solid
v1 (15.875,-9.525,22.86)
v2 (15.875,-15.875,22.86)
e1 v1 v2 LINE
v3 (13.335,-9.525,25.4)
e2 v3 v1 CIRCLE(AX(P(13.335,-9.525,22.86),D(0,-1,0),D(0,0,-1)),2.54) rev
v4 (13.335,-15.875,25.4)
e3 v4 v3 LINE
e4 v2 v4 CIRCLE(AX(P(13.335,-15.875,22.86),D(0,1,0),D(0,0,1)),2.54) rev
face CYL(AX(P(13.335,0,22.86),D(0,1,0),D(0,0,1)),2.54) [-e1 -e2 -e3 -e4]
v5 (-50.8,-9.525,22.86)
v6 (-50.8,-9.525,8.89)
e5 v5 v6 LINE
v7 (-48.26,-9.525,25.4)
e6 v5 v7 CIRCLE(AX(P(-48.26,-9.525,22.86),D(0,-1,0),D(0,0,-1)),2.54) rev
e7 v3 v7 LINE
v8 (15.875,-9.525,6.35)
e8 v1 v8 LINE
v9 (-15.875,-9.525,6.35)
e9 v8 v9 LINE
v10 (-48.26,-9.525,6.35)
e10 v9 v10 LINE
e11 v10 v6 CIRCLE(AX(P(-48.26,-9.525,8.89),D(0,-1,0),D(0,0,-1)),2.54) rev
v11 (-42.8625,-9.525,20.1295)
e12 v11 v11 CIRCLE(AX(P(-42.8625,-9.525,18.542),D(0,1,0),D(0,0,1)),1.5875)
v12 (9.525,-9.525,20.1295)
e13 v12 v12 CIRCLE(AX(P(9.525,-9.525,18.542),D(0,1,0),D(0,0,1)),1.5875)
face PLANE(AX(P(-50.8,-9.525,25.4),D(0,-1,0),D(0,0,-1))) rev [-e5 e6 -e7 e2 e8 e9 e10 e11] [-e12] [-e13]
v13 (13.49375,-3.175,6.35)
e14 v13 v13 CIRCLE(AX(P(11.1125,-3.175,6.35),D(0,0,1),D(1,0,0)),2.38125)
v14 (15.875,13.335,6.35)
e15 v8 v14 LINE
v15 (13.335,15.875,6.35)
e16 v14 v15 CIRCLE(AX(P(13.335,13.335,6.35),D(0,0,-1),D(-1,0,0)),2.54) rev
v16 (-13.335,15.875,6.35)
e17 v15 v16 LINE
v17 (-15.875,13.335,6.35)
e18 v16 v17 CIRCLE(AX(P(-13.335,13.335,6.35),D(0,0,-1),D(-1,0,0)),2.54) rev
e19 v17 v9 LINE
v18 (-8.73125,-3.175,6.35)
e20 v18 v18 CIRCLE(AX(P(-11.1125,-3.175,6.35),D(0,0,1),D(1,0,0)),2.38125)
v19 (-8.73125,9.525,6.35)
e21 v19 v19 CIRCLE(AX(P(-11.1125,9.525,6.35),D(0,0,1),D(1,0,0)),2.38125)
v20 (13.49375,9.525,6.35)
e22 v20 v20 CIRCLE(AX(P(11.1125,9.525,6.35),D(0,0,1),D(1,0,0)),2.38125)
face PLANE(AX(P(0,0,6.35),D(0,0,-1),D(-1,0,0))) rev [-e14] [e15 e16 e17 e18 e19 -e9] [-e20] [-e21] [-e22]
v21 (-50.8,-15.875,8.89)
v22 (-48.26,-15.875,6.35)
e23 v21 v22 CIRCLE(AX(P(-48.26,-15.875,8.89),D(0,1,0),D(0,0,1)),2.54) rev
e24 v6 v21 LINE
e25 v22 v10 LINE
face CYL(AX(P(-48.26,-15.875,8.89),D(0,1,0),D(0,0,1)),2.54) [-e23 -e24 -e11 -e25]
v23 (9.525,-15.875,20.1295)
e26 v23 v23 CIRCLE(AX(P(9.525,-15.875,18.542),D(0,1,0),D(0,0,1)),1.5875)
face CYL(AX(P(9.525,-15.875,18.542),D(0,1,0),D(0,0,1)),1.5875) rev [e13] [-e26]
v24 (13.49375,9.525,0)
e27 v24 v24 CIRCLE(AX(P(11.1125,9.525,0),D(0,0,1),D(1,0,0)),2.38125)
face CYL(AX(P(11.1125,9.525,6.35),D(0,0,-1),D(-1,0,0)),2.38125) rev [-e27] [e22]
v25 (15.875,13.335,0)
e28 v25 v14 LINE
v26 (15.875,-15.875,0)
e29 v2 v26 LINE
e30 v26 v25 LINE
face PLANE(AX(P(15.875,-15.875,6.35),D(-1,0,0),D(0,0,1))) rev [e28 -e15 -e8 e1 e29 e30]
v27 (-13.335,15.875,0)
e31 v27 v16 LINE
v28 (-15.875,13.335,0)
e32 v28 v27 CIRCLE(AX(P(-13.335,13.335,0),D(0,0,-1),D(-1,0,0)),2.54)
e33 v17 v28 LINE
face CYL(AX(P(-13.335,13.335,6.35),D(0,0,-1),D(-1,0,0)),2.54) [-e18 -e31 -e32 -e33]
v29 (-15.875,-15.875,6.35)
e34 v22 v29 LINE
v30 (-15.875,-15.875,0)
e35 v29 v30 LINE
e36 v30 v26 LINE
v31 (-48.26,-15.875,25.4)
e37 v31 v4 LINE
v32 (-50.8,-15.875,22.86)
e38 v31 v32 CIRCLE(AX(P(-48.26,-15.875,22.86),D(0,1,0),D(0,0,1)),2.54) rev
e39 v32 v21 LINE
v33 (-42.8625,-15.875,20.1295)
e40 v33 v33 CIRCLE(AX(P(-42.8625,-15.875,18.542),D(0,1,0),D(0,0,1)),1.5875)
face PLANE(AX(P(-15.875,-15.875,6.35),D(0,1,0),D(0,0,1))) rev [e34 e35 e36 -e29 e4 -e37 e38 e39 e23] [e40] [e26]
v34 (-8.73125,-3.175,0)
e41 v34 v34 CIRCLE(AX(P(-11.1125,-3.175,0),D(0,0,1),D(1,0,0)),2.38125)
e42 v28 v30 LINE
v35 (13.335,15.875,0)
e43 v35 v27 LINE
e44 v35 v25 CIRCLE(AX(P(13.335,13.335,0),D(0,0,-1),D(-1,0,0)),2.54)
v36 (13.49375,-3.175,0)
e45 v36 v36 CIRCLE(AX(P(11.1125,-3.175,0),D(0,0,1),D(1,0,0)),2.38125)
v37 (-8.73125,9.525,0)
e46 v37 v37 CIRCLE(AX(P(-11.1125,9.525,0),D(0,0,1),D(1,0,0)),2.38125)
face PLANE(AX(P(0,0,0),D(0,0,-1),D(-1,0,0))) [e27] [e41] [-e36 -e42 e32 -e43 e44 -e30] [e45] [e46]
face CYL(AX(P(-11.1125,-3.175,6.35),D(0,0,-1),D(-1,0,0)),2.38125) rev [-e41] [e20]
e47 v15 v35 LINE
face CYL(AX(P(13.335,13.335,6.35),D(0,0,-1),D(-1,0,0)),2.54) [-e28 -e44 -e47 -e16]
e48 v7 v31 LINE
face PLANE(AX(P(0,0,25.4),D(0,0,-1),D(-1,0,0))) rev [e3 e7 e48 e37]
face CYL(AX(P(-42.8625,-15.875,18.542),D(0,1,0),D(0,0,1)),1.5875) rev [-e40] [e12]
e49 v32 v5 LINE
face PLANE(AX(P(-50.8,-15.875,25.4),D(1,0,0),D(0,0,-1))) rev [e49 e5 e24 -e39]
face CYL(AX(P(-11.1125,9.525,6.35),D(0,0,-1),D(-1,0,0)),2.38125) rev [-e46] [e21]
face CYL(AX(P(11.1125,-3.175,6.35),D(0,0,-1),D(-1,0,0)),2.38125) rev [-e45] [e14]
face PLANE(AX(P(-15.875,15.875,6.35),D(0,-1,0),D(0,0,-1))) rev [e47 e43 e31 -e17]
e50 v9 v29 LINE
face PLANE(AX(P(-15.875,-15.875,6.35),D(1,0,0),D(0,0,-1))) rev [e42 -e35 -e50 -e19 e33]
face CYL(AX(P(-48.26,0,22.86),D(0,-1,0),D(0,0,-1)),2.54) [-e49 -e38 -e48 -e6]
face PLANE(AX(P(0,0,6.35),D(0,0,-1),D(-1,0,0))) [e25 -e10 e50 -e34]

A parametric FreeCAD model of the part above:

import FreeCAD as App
import Part
import Sketcher

V = App.Vector
Q = App.Units.Quantity


def edges_at(feature, points):
    """Names of the edges that pass closest to the given points."""
    edges = feature.Shape.Edges
    near = lambda p: min(range(len(edges)), key=lambda i: edges[i].distToShape(Part.Vertex(*p))[0])
    return sorted({f"Edge{near(p) + 1}" for p in points})

doc = App.newDocument("Part")
body = doc.addObject("PartDesign::Body", "Body")

# Sketch on XY plane
sketch1 = body.newObject("Sketcher::SketchObject", "Sketch")
sketch1.AttachmentSupport = (doc.getObject("XY_Plane"), [""])
sketch1.MapMode = "FlatFace"
sketch1.addGeometry(Part.LineSegment(V(-15.9, 15.9, 0), V(-15.9, -15.9, 0)), False)
sketch1.addGeometry(Part.LineSegment(V(-15.9, -15.9, 0), V(15.9, -15.9, 0)), False)
sketch1.addGeometry(Part.LineSegment(V(15.9, -15.9, 0), V(15.9, 15.9, 0)), False)
sketch1.addGeometry(Part.LineSegment(V(15.9, 15.9, 0), V(-15.9, 15.9, 0)), False)
sketch1.addGeometry(Part.Circle(V(-11.1, -3.2, 0), V(0, 0, 1), 2.4), False)
sketch1.addGeometry(Part.Circle(V(11.1, -3.2, 0), V(0, 0, 1), 2.4), False)
sketch1.addGeometry(Part.Circle(V(-11.1, 9.5, 0), V(0, 0, 1), 2.4), False)
sketch1.addGeometry(Part.Circle(V(11.1, 9.5, 0), V(0, 0, 1), 2.4), False)
sketch1.addConstraint(Sketcher.Constraint("Coincident", 0, 2, 1, 1))
sketch1.addConstraint(Sketcher.Constraint("Coincident", 1, 2, 2, 1))
sketch1.addConstraint(Sketcher.Constraint("Coincident", 2, 2, 3, 1))
sketch1.addConstraint(Sketcher.Constraint("Coincident", 3, 2, 0, 1))
sketch1.addConstraint(Sketcher.Constraint("Vertical", 0))
sketch1.addConstraint(Sketcher.Constraint("Horizontal", 1))
sketch1.addConstraint(Sketcher.Constraint("Vertical", 2))
sketch1.addConstraint(Sketcher.Constraint("Horizontal", 3))
sketch1.addConstraint(Sketcher.Constraint("Equal", 4, 5))
sketch1.addConstraint(Sketcher.Constraint("Equal", 5, 6))
sketch1.addConstraint(Sketcher.Constraint("Equal", 6, 7))
sketch1.addConstraint(Sketcher.Constraint("Symmetric", 0, 2, 2, 2, -1, 1))
sketch1.addConstraint(Sketcher.Constraint("Symmetric", 4, 3, 5, 3, -2))
sketch1.addConstraint(Sketcher.Constraint("Symmetric", 6, 3, 7, 3, -2))
sketch1.addConstraint(Sketcher.Constraint("Vertical", 4, 3, 6, 3))
sketch1.addConstraint(Sketcher.Constraint("Equal", 3, 0))
sketch1.addConstraint(Sketcher.Constraint("Diameter", 4, Q("0.1875 in")))
sketch1.addConstraint(Sketcher.Constraint("DistanceY", 0, 2, 6, 3, Q("1 in")))
sketch1.addConstraint(Sketcher.Constraint("DistanceX", 1, 1, 1, 2, Q("1.25 in")))
sketch1.addConstraint(Sketcher.Constraint("DistanceY", 4, 3, 6, 3, Q("0.5 in")))
sketch1.addConstraint(Sketcher.Constraint("DistanceX", 4, 3, -1, 1, Q("0.4375 in")))
pad1 = body.newObject("PartDesign::Pad", "Pad")
pad1.Profile = sketch1
pad1.Length = Q("0.25 in")

# Sketch on XY plane
sketch2 = body.newObject("Sketcher::SketchObject", "Sketch001")
sketch2.AttachmentSupport = (doc.getObject("XY_Plane"), [""])
sketch2.MapMode = "FlatFace"
sketch2.AttachmentOffset = App.Placement(V(0, 0, 0.25 * 25.4), App.Rotation())
sketch2.addGeometry(Part.LineSegment(V(-51, -10, 0), V(-51, -16, 0)), False)
sketch2.addGeometry(Part.LineSegment(V(-51, -16, 0), V(16, -16, 0)), False)
sketch2.addGeometry(Part.LineSegment(V(16, -16, 0), V(16, -10, 0)), False)
sketch2.addGeometry(Part.LineSegment(V(16, -10, 0), V(-51, -10, 0)), False)
sketch2.addConstraint(Sketcher.Constraint("Coincident", 0, 2, 1, 1))
sketch2.addConstraint(Sketcher.Constraint("Coincident", 1, 2, 2, 1))
sketch2.addConstraint(Sketcher.Constraint("Coincident", 2, 2, 3, 1))
sketch2.addConstraint(Sketcher.Constraint("Coincident", 3, 2, 0, 1))
sketch2.addConstraint(Sketcher.Constraint("Vertical", 0))
sketch2.addConstraint(Sketcher.Constraint("Horizontal", 1))
sketch2.addConstraint(Sketcher.Constraint("Vertical", 2))
sketch2.addConstraint(Sketcher.Constraint("Horizontal", 3))
sketch2.addConstraint(Sketcher.Constraint("DistanceX", 0, 2, -1, 1, Q("2 in")))
sketch2.addConstraint(Sketcher.Constraint("DistanceY", 0, 2, 0, 1, Q("0.25 in")))
sketch2.addConstraint(Sketcher.Constraint("DistanceX", 1, 1, 1, 2, Q("2.625 in")))
sketch2.addConstraint(Sketcher.Constraint("DistanceY", 0, 2, -1, 1, Q("0.625 in")))
pad2 = body.newObject("PartDesign::Pad", "Pad001")
pad2.Profile = sketch2
pad2.Length = Q("0.75 in")

# Sketch on XZ plane
sketch3 = body.newObject("Sketcher::SketchObject", "Sketch002")
sketch3.AttachmentSupport = (doc.getObject("XZ_Plane"), [""])
sketch3.MapMode = "FlatFace"
sketch3.AttachmentOffset = App.Placement(V(0, 0, 0.375 * 25.4), App.Rotation())
sketch3.addGeometry(Part.Circle(V(9.5, 18.5, 0), V(0, 0, 1), 1.6), False)
sketch3.addGeometry(Part.Circle(V(-42.9, 18.5, 0), V(0, 0, 1), 1.6), False)
sketch3.addConstraint(Sketcher.Constraint("Equal", 0, 1))
sketch3.addConstraint(Sketcher.Constraint("Horizontal", 0, 3, 1, 3))
sketch3.addConstraint(Sketcher.Constraint("Diameter", 0, Q("0.125 in")))
sketch3.addConstraint(Sketcher.Constraint("DistanceY", -1, 1, 0, 3, Q("0.73 in")))
sketch3.addConstraint(Sketcher.Constraint("DistanceX", -1, 1, 0, 3, Q("0.375 in")))
sketch3.addConstraint(Sketcher.Constraint("DistanceX", 1, 3, -1, 1, Q("1.6875 in")))
pocket1 = body.newObject("PartDesign::Pocket", "Pocket")
pocket1.Profile = sketch3
pocket1.Type = "ThroughAll"
pocket1.Reversed = True
doc.recompute()

fillet = body.newObject("PartDesign::Fillet", "Fillet")
fillet.Base = (pocket1, edges_at(pocket1, [
    (-50.8, -12.7, 6.35),
    (-50.8, -12.7, 25.4),
    (15.875, -12.7, 25.4),
    (-15.875, 15.875, 3.175),
    (15.875, 15.875, 3.175),
]))
fillet.Radius = Q("0.1 in")

doc.recompute()
